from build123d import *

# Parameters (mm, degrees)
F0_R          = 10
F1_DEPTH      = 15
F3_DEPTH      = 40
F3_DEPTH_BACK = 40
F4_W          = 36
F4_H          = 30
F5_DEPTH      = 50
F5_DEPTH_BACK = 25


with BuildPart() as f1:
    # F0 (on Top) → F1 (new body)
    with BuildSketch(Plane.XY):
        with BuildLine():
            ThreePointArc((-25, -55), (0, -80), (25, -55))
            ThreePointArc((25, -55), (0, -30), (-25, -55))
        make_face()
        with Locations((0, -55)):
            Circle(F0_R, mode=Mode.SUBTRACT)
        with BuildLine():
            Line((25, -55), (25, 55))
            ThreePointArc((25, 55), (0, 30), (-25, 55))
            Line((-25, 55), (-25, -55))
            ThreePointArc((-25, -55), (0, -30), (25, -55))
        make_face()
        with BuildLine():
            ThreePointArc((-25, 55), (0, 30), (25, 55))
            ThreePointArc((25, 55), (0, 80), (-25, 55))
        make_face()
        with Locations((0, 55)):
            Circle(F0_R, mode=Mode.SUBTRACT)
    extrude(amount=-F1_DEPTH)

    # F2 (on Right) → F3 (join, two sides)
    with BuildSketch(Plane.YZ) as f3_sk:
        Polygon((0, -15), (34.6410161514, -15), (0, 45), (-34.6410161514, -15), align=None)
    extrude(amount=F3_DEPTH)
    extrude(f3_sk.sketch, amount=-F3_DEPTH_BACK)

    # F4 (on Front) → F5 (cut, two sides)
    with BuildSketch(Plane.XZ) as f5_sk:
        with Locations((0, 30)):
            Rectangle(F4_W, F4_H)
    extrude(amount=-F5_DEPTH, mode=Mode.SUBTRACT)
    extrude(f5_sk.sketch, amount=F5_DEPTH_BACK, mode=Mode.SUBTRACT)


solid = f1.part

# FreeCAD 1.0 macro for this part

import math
import FreeCAD as App
import Part
import Sketcher

V = App.Vector
Q = App.Units.Quantity


def add_polygon(sketch, points):
    """Adds a closed chain of lines whose ends are joined by coincident constraints."""
    first, n = sketch.GeometryCount, len(points)
    for a, b in zip(points, points[1:] + points[:1]):
        sketch.addGeometry(Part.LineSegment(App.Vector(*a, 0), App.Vector(*b, 0)), False)
    for i in range(n):
        sketch.addConstraint(Sketcher.Constraint("Coincident", first + i, 2, first + (i + 1) % n, 1))

doc = App.newDocument("Part")
body = doc.addObject("PartDesign::Body", "Body")

# Sketch on XY plane
sketch1 = body.newObject("Sketcher::SketchObject", "Sketch")
sketch1.AttachmentSupport = (doc.getObject("XY_Plane"), [""])
sketch1.MapMode = "FlatFace"
sketch1.addGeometry([
    Part.ArcOfCircle(Part.Circle(V(0, -55, 0), V(0, 0, 1), 25), math.radians(180), math.radians(360)),  # 0
    Part.LineSegment(V(25, -55, 0), V(25, 55, 0)),  # 1
    Part.ArcOfCircle(Part.Circle(V(0, 55, 0), V(0, 0, 1), 25), math.radians(0), math.radians(180)),  # 2
    Part.LineSegment(V(-25, 55, 0), V(-25, -55, 0)),  # 3
    Part.Circle(V(0, -55, 0), V(0, 0, 1), 10),  # 4
    Part.Circle(V(0, 55, 0), V(0, 0, 1), 10),  # 5
], False)
sketch1.addConstraint([
    Sketcher.Constraint("Tangent", 0, 2, 1, 1),
    Sketcher.Constraint("Tangent", 1, 2, 2, 1),
    Sketcher.Constraint("Tangent", 2, 2, 3, 1),
    Sketcher.Constraint("Tangent", 3, 2, 0, 1),
    Sketcher.Constraint("Vertical", 1),
    Sketcher.Constraint("Vertical", 3),
    Sketcher.Constraint("Coincident", 4, 3, 0, 3),
    Sketcher.Constraint("Coincident", 5, 3, 2, 3),
    Sketcher.Constraint("Equal", 4, 5),
    Sketcher.Constraint("Symmetric", 0, 3, 2, 3, -1, 1),
    Sketcher.Constraint("Diameter", 4, 20.0),
    Sketcher.Constraint("Radius", 0, 25.0),
    Sketcher.Constraint("DistanceY", 1, 1, 1, 2, 110.0),
])
pad1 = body.newObject("PartDesign::Pad", "Pad")
pad1.Profile = sketch1
pad1.Length = 15
pad1.Reversed = True

# Sketch on YZ plane
sketch2 = body.newObject("Sketcher::SketchObject", "Sketch001")
sketch2.AttachmentSupport = (doc.getObject("YZ_Plane"), [""])
sketch2.MapMode = "FlatFace"
add_polygon(sketch2, [(34.641016, -15), (0, 45), (-34.641016, -15)])  # lines 0-2
sketch2.addConstraint([
    Sketcher.Constraint("Horizontal", 2),
    Sketcher.Constraint("PointOnObject", 0, 2, -2),
    Sketcher.Constraint("Equal", 0, 1),
    Sketcher.Constraint("Angle", 0, Q("120 deg")),
    Sketcher.Constraint("DistanceY", -1, 1, 0, 2, 45.0),
    Sketcher.Constraint("DistanceY", 1, 2, -1, 1, 15.0),
])
pad2 = body.newObject("PartDesign::Pad", "Pad001")
pad2.Profile = sketch2
pad2.Type = "TwoLengths"
pad2.Length = 40
pad2.Length2 = 40

# Sketch on XZ plane
sketch3 = body.newObject("Sketcher::SketchObject", "Sketch002")
sketch3.AttachmentSupport = (doc.getObject("XZ_Plane"), [""])
sketch3.MapMode = "FlatFace"
add_polygon(sketch3, [(-18, 45), (-18, 15), (18, 15), (18, 45)])  # lines 0-3
sketch3.addConstraint([
    Sketcher.Constraint("Vertical", 0),
    Sketcher.Constraint("Horizontal", 1),
    Sketcher.Constraint("Vertical", 2),
    Sketcher.Constraint("Horizontal", 3),
    Sketcher.Constraint("DistanceX", 1, 1, 1, 2, 36.0),
    Sketcher.Constraint("DistanceY", 0, 2, 0, 1, 30.0),
    Sketcher.Constraint("DistanceX", 0, 2, -1, 1, 18.0),
    Sketcher.Constraint("DistanceY", -1, 1, 0, 2, 15.0),
])
pocket1 = body.newObject("PartDesign::Pocket", "Pocket")
pocket1.Profile = sketch3
pocket1.Type = "ThroughAll"
pocket1.Midplane = True

doc.recompute()
